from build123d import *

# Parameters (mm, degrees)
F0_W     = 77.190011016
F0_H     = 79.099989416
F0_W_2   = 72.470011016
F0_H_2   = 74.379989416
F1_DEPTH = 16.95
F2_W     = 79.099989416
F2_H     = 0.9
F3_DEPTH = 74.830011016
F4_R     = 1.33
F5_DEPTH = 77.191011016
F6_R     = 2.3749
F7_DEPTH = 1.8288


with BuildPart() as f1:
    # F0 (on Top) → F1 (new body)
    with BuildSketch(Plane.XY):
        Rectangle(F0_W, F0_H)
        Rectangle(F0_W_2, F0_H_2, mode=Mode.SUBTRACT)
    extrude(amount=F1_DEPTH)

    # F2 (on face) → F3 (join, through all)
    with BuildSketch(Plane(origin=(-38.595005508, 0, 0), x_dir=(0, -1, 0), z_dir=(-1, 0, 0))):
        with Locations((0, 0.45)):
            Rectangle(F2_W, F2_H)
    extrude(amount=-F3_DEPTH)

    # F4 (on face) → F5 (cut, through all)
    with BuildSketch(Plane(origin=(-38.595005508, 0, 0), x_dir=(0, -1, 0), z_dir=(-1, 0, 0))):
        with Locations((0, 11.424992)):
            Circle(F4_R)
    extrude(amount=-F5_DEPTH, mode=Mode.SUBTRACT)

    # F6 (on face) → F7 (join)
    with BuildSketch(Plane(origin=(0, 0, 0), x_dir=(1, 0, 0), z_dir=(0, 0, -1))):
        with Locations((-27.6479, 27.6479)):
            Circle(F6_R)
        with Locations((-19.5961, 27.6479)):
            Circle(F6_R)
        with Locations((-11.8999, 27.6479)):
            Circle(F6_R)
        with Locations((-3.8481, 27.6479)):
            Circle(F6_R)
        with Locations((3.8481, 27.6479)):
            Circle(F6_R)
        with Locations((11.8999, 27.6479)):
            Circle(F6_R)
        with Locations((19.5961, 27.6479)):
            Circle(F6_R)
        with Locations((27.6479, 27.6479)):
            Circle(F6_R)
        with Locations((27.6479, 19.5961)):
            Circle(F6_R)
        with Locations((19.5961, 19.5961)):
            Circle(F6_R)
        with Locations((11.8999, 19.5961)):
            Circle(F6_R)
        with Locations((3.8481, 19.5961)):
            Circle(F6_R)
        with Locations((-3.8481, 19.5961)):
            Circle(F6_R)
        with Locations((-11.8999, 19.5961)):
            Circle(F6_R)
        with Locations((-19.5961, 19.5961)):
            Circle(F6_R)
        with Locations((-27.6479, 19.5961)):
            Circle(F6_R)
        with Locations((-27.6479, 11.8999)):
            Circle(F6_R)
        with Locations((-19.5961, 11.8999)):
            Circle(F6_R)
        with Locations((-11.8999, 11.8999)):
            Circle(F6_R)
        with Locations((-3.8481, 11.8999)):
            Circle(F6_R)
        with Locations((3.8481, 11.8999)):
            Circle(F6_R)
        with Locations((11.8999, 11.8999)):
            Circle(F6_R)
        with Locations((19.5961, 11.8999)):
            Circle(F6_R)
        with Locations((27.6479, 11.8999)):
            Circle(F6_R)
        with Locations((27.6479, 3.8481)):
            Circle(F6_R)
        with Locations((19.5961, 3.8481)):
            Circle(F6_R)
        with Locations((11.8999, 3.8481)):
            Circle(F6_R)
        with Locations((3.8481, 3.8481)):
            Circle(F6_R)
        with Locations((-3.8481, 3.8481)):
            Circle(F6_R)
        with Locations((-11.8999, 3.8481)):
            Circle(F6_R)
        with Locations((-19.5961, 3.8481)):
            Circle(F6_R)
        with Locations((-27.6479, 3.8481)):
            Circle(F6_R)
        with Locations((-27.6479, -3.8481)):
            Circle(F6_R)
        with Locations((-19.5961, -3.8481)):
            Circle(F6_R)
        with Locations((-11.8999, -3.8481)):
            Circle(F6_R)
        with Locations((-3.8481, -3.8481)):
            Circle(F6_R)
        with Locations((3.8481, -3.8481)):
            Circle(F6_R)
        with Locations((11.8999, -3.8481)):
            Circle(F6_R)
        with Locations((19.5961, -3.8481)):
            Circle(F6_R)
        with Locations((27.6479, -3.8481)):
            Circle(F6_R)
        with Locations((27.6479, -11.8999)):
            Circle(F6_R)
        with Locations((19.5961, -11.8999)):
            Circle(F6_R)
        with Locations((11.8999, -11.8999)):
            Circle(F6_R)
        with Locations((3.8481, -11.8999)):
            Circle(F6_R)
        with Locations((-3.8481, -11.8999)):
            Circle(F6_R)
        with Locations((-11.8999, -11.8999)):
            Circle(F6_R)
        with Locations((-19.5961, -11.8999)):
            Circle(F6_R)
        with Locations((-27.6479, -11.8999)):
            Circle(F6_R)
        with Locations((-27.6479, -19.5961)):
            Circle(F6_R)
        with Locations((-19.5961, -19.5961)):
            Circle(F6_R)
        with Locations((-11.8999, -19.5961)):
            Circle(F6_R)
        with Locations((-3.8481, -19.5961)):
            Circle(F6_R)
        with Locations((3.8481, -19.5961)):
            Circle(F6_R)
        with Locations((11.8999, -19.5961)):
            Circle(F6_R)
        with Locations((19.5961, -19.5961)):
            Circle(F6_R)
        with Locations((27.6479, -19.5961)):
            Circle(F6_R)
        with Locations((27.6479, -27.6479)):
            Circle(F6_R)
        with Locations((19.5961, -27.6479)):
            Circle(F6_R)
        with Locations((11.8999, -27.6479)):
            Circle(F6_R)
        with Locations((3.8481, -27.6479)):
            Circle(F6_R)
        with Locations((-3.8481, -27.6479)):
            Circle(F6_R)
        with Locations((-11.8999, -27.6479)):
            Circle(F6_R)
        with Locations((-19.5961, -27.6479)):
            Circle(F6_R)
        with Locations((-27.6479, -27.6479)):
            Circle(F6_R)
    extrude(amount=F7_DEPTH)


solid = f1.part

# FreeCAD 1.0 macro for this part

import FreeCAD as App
import Part
import Sketcher

V = App.Vector
Q = App.Units.Quantity


def add_polygon(sketch, points):
    """Adds a closed chain of lines whose ends are joined by coincident constraints."""
    first, n = sketch.GeometryCount, len(points)
    for a, b in zip(points, points[1:] + points[:1]):
        sketch.addGeometry(Part.LineSegment(App.Vector(*a, 0), App.Vector(*b, 0)), False)
    for i in range(n):
        sketch.addConstraint(Sketcher.Constraint("Coincident", first + i, 2, first + (i + 1) % n, 1))

doc = App.newDocument("Part")
body = doc.addObject("PartDesign::Body", "Body")

# Sketch on XY plane
sketch1 = body.newObject("Sketcher::SketchObject", "Sketch")
sketch1.AttachmentSupport = (doc.getObject("XY_Plane"), [""])
sketch1.MapMode = "FlatFace"
add_polygon(sketch1, [(-39, 40), (-39, -40), (39, -40), (39, 40)])  # lines 0-3
add_polygon(sketch1, [(36, -37), (-36, -37), (-36, 37), (36, 37)])  # lines 4-7
sketch1.addConstraint(Sketcher.Constraint("Vertical", 0))
sketch1.addConstraint(Sketcher.Constraint("Horizontal", 1))
sketch1.addConstraint(Sketcher.Constraint("Vertical", 2))
sketch1.addConstraint(Sketcher.Constraint("Horizontal", 3))
sketch1.addConstraint(Sketcher.Constraint("Horizontal", 4))
sketch1.addConstraint(Sketcher.Constraint("Vertical", 5))
sketch1.addConstraint(Sketcher.Constraint("Horizontal", 6))
sketch1.addConstraint(Sketcher.Constraint("Vertical", 7))
sketch1.addConstraint(Sketcher.Constraint("Symmetric", 0, 2, 2, 2, -1, 1))
sketch1.addConstraint(Sketcher.Constraint("Symmetric", 4, 2, 6, 2, -1, 1))
sketch1.addConstraint(Sketcher.Constraint("DistanceX", 1, 1, 1, 2, 77.190011))
sketch1.addConstraint(Sketcher.Constraint("DistanceX", 4, 2, 4, 1, 72.470011))
sketch1.addConstraint(Sketcher.Constraint("DistanceY", 0, 2, 0, 1, 79.099989))
sketch1.addConstraint(Sketcher.Constraint("DistanceY", 5, 1, 5, 2, 74.379989))
pad1 = body.newObject("PartDesign::Pad", "Pad")
pad1.Profile = sketch1
pad1.Length = 16.95

# Sketch on YZ plane
sketch2 = body.newObject("Sketcher::SketchObject", "Sketch001")
sketch2.AttachmentSupport = (doc.getObject("YZ_Plane"), [""])
sketch2.MapMode = "FlatFace"
sketch2.AttachmentOffset = App.Placement(V(0, 0, -38.595006), App.Rotation())
add_polygon(sketch2, [(39.5, 0.9), (39.5, 0), (-39.5, 0), (-39.5, 0.9)])  # lines 0-3
sketch2.addConstraint(Sketcher.Constraint("Vertical", 0))
sketch2.addConstraint(Sketcher.Constraint("Horizontal", 1))
sketch2.addConstraint(Sketcher.Constraint("Vertical", 2))
sketch2.addConstraint(Sketcher.Constraint("Horizontal", 3))
sketch2.addConstraint(Sketcher.Constraint("Symmetric", 0, 2, 1, 2, -1, 1))
sketch2.addConstraint(Sketcher.Constraint("DistanceY", 0, 2, 0, 1, 0.9))
sketch2.addConstraint(Sketcher.Constraint("DistanceX", 1, 2, 1, 1, 79.099989))
pad2 = body.newObject("PartDesign::Pad", "Pad001")
pad2.Profile = sketch2
pad2.Type = "UpToLast"

# Sketch on YZ plane
sketch3 = body.newObject("Sketcher::SketchObject", "Sketch002")
sketch3.AttachmentSupport = (doc.getObject("YZ_Plane"), [""])
sketch3.MapMode = "FlatFace"
sketch3.AttachmentOffset = App.Placement(V(0, 0, -38.595006), App.Rotation())
sketch3.addGeometry(Part.Circle(V(0, 11.4, 0), V(0, 0, 1), 1.3), False)
sketch3.addConstraint(Sketcher.Constraint("PointOnObject", 0, 3, -2))
sketch3.addConstraint(Sketcher.Constraint("Diameter", 0, 2.66))
sketch3.addConstraint(Sketcher.Constraint("DistanceY", -1, 1, 0, 3, 11.424992))
pocket1 = body.newObject("PartDesign::Pocket", "Pocket")
pocket1.Profile = sketch3
pocket1.Type = "ThroughAll"
pocket1.Reversed = True

# Sketch on XY plane
sketch4 = body.newObject("Sketcher::SketchObject", "Sketch003")
sketch4.AttachmentSupport = (doc.getObject("XY_Plane"), [""])
sketch4.MapMode = "FlatFace"
sketch4.addGeometry(Part.Circle(V(-27.6, -27.6, 0), V(0, 0, 1), 2.4), False)
sketch4.addGeometry(Part.Circle(V(-19.6, -27.6, 0), V(0, 0, 1), 2.4), False)
sketch4.addGeometry(Part.Circle(V(-11.9, -27.6, 0), V(0, 0, 1), 2.4), False)
sketch4.addGeometry(Part.Circle(V(-3.8, -27.6, 0), V(0, 0, 1), 2.4), False)
sketch4.addGeometry(Part.Circle(V(3.8, -27.6, 0), V(0, 0, 1), 2.4), False)
sketch4.addGeometry(Part.Circle(V(11.9, -27.6, 0), V(0, 0, 1), 2.4), False)
sketch4.addGeometry(Part.Circle(V(19.6, -27.6, 0), V(0, 0, 1), 2.4), False)
sketch4.addGeometry(Part.Circle(V(27.6, -27.6, 0), V(0, 0, 1), 2.4), False)
sketch4.addGeometry(Part.Circle(V(27.6, -19.6, 0), V(0, 0, 1), 2.4), False)
sketch4.addGeometry(Part.Circle(V(19.6, -19.6, 0), V(0, 0, 1), 2.4), False)
sketch4.addGeometry(Part.Circle(V(11.9, -19.6, 0), V(0, 0, 1), 2.4), False)
sketch4.addGeometry(Part.Circle(V(3.8, -19.6, 0), V(0, 0, 1), 2.4), False)
sketch4.addGeometry(Part.Circle(V(-3.8, -19.6, 0), V(0, 0, 1), 2.4), False)
sketch4.addGeometry(Part.Circle(V(-11.9, -19.6, 0), V(0, 0, 1), 2.4), False)
sketch4.addGeometry(Part.Circle(V(-19.6, -19.6, 0), V(0, 0, 1), 2.4), False)
sketch4.addGeometry(Part.Circle(V(-27.6, -19.6, 0), V(0, 0, 1), 2.4), False)
sketch4.addGeometry(Part.Circle(V(-27.6, -11.9, 0), V(0, 0, 1), 2.4), False)
sketch4.addGeometry(Part.Circle(V(-19.6, -11.9, 0), V(0, 0, 1), 2.4), False)
sketch4.addGeometry(Part.Circle(V(-11.9, -11.9, 0), V(0, 0, 1), 2.4), False)
sketch4.addGeometry(Part.Circle(V(-3.8, -11.9, 0), V(0, 0, 1), 2.4), False)
sketch4.addGeometry(Part.Circle(V(3.8, -11.9, 0), V(0, 0, 1), 2.4), False)
sketch4.addGeometry(Part.Circle(V(11.9, -11.9, 0), V(0, 0, 1), 2.4), False)
sketch4.addGeometry(Part.Circle(V(19.6, -11.9, 0), V(0, 0, 1), 2.4), False)
sketch4.addGeometry(Part.Circle(V(27.6, -11.9, 0), V(0, 0, 1), 2.4), False)
sketch4.addGeometry(Part.Circle(V(27.6, -3.8, 0), V(0, 0, 1), 2.4), False)
sketch4.addGeometry(Part.Circle(V(19.6, -3.8, 0), V(0, 0, 1), 2.4), False)
sketch4.addGeometry(Part.Circle(V(11.9, -3.8, 0), V(0, 0, 1), 2.4), False)
sketch4.addGeometry(Part.Circle(V(3.8, -3.8, 0), V(0, 0, 1), 2.4), False)
sketch4.addGeometry(Part.Circle(V(-3.8, -3.8, 0), V(0, 0, 1), 2.4), False)
sketch4.addGeometry(Part.Circle(V(-11.9, -3.8, 0), V(0, 0, 1), 2.4), False)
sketch4.addGeometry(Part.Circle(V(-19.6, -3.8, 0), V(0, 0, 1), 2.4), False)
sketch4.addGeometry(Part.Circle(V(-27.6, -3.8, 0), V(0, 0, 1), 2.4), False)
sketch4.addGeometry(Part.Circle(V(-27.6, 3.8, 0), V(0, 0, 1), 2.4), False)
sketch4.addGeometry(Part.Circle(V(-19.6, 3.8, 0), V(0, 0, 1), 2.4), False)
sketch4.addGeometry(Part.Circle(V(-11.9, 3.8, 0), V(0, 0, 1), 2.4), False)
sketch4.addGeometry(Part.Circle(V(-3.8, 3.8, 0), V(0, 0, 1), 2.4), False)
sketch4.addGeometry(Part.Circle(V(3.8, 3.8, 0), V(0, 0, 1), 2.4), False)
sketch4.addGeometry(Part.Circle(V(11.9, 3.8, 0), V(0, 0, 1), 2.4), False)
sketch4.addGeometry(Part.Circle(V(19.6, 3.8, 0), V(0, 0, 1), 2.4), False)
sketch4.addGeometry(Part.Circle(V(27.6, 3.8, 0), V(0, 0, 1), 2.4), False)
sketch4.addGeometry(Part.Circle(V(27.6, 11.9, 0), V(0, 0, 1), 2.4), False)
sketch4.addGeometry(Part.Circle(V(19.6, 11.9, 0), V(0, 0, 1), 2.4), False)
sketch4.addGeometry(Part.Circle(V(11.9, 11.9, 0), V(0, 0, 1), 2.4), False)
sketch4.addGeometry(Part.Circle(V(3.8, 11.9, 0), V(0, 0, 1), 2.4), False)
sketch4.addGeometry(Part.Circle(V(-3.8, 11.9, 0), V(0, 0, 1), 2.4), False)
sketch4.addGeometry(Part.Circle(V(-11.9, 11.9, 0), V(0, 0, 1), 2.4), False)
sketch4.addGeometry(Part.Circle(V(-19.6, 11.9, 0), V(0, 0, 1), 2.4), False)
sketch4.addGeometry(Part.Circle(V(-27.6, 11.9, 0), V(0, 0, 1), 2.4), False)
sketch4.addGeometry(Part.Circle(V(-27.6, 19.6, 0), V(0, 0, 1), 2.4), False)
sketch4.addGeometry(Part.Circle(V(-19.6, 19.6, 0), V(0, 0, 1), 2.4), False)
sketch4.addGeometry(Part.Circle(V(-11.9, 19.6, 0), V(0, 0, 1), 2.4), False)
sketch4.addGeometry(Part.Circle(V(-3.8, 19.6, 0), V(0, 0, 1), 2.4), False)
sketch4.addGeometry(Part.Circle(V(3.8, 19.6, 0), V(0, 0, 1), 2.4), False)
sketch4.addGeometry(Part.Circle(V(11.9, 19.6, 0), V(0, 0, 1), 2.4), False)
sketch4.addGeometry(Part.Circle(V(19.6, 19.6, 0), V(0, 0, 1), 2.4), False)
sketch4.addGeometry(Part.Circle(V(27.6, 19.6, 0), V(0, 0, 1), 2.4), False)
sketch4.addGeometry(Part.Circle(V(27.6, 27.6, 0), V(0, 0, 1), 2.4), False)
sketch4.addGeometry(Part.Circle(V(19.6, 27.6, 0), V(0, 0, 1), 2.4), False)
sketch4.addGeometry(Part.Circle(V(11.9, 27.6, 0), V(0, 0, 1), 2.4), False)
sketch4.addGeometry(Part.Circle(V(3.8, 27.6, 0), V(0, 0, 1), 2.4), False)
sketch4.addGeometry(Part.Circle(V(-3.8, 27.6, 0), V(0, 0, 1), 2.4), False)
sketch4.addGeometry(Part.Circle(V(-11.9, 27.6, 0), V(0, 0, 1), 2.4), False)
sketch4.addGeometry(Part.Circle(V(-19.6, 27.6, 0), V(0, 0, 1), 2.4), False)
sketch4.addGeometry(Part.Circle(V(-27.6, 27.6, 0), V(0, 0, 1), 2.4), False)
sketch4.addConstraint(Sketcher.Constraint("Equal", 0, 1))
sketch4.addConstraint(Sketcher.Constraint("Equal", 1, 2))
sketch4.addConstraint(Sketcher.Constraint("Equal", 2, 3))
sketch4.addConstraint(Sketcher.Constraint("Equal", 3, 4))
sketch4.addConstraint(Sketcher.Constraint("Equal", 4, 5))
sketch4.addConstraint(Sketcher.Constraint("Equal", 5, 6))
sketch4.addConstraint(Sketcher.Constraint("Equal", 6, 7))
sketch4.addConstraint(Sketcher.Constraint("Equal", 7, 8))
sketch4.addConstraint(Sketcher.Constraint("Equal", 8, 9))
sketch4.addConstraint(Sketcher.Constraint("Equal", 9, 10))
sketch4.addConstraint(Sketcher.Constraint("Equal", 10, 11))
sketch4.addConstraint(Sketcher.Constraint("Equal", 11, 12))
sketch4.addConstraint(Sketcher.Constraint("Equal", 12, 13))
sketch4.addConstraint(Sketcher.Constraint("Equal", 13, 14))
sketch4.addConstraint(Sketcher.Constraint("Equal", 14, 15))
sketch4.addConstraint(Sketcher.Constraint("Equal", 15, 16))
sketch4.addConstraint(Sketcher.Constraint("Equal", 16, 17))
sketch4.addConstraint(Sketcher.Constraint("Equal", 17, 18))
sketch4.addConstraint(Sketcher.Constraint("Equal", 18, 19))
sketch4.addConstraint(Sketcher.Constraint("Equal", 19, 20))
sketch4.addConstraint(Sketcher.Constraint("Equal", 20, 21))
sketch4.addConstraint(Sketcher.Constraint("Equal", 21, 22))
sketch4.addConstraint(Sketcher.Constraint("Equal", 22, 23))
sketch4.addConstraint(Sketcher.Constraint("Equal", 23, 24))
sketch4.addConstraint(Sketcher.Constraint("Equal", 24, 25))
sketch4.addConstraint(Sketcher.Constraint("Equal", 25, 26))
sketch4.addConstraint(Sketcher.Constraint("Equal", 26, 27))
sketch4.addConstraint(Sketcher.Constraint("Equal", 27, 28))
sketch4.addConstraint(Sketcher.Constraint("Equal", 28, 29))
sketch4.addConstraint(Sketcher.Constraint("Equal", 29, 30))
sketch4.addConstraint(Sketcher.Constraint("Equal", 30, 31))
sketch4.addConstraint(Sketcher.Constraint("Equal", 31, 32))
sketch4.addConstraint(Sketcher.Constraint("Equal", 32, 33))
sketch4.addConstraint(Sketcher.Constraint("Equal", 33, 34))
sketch4.addConstraint(Sketcher.Constraint("Equal", 34, 35))
sketch4.addConstraint(Sketcher.Constraint("Equal", 35, 36))
sketch4.addConstraint(Sketcher.Constraint("Equal", 36, 37))
sketch4.addConstraint(Sketcher.Constraint("Equal", 37, 38))
sketch4.addConstraint(Sketcher.Constraint("Equal", 38, 39))
sketch4.addConstraint(Sketcher.Constraint("Equal", 39, 40))
sketch4.addConstraint(Sketcher.Constraint("Equal", 40, 41))
sketch4.addConstraint(Sketcher.Constraint("Equal", 41, 42))
sketch4.addConstraint(Sketcher.Constraint("Equal", 42, 43))
sketch4.addConstraint(Sketcher.Constraint("Equal", 43, 44))
sketch4.addConstraint(Sketcher.Constraint("Equal", 44, 45))
sketch4.addConstraint(Sketcher.Constraint("Equal", 45, 46))
sketch4.addConstraint(Sketcher.Constraint("Equal", 46, 47))
sketch4.addConstraint(Sketcher.Constraint("Equal", 47, 48))
sketch4.addConstraint(Sketcher.Constraint("Equal", 48, 49))
sketch4.addConstraint(Sketcher.Constraint("Equal", 49, 50))
sketch4.addConstraint(Sketcher.Constraint("Equal", 50, 51))
sketch4.addConstraint(Sketcher.Constraint("Equal", 51, 52))
sketch4.addConstraint(Sketcher.Constraint("Equal", 52, 53))
sketch4.addConstraint(Sketcher.Constraint("Equal", 53, 54))
sketch4.addConstraint(Sketcher.Constraint("Equal", 54, 55))
sketch4.addConstraint(Sketcher.Constraint("Equal", 55, 56))
sketch4.addConstraint(Sketcher.Constraint("Equal", 56, 57))
sketch4.addConstraint(Sketcher.Constraint("Equal", 57, 58))
sketch4.addConstraint(Sketcher.Constraint("Equal", 58, 59))
sketch4.addConstraint(Sketcher.Constraint("Equal", 59, 60))
sketch4.addConstraint(Sketcher.Constraint("Equal", 60, 61))
sketch4.addConstraint(Sketcher.Constraint("Equal", 61, 62))
sketch4.addConstraint(Sketcher.Constraint("Equal", 62, 63))
sketch4.addConstraint(Sketcher.Constraint("Symmetric", 24, 3, 32, 3, -1, 1))
sketch4.addConstraint(Sketcher.Constraint("Symmetric", 25, 3, 33, 3, -1, 1))
sketch4.addConstraint(Sketcher.Constraint("Symmetric", 26, 3, 34, 3, -1, 1))
sketch4.addConstraint(Sketcher.Constraint("Symmetric", 27, 3, 35, 3, -1, 1))
sketch4.addConstraint(Sketcher.Constraint("Symmetric", 28, 3, 36, 3, -1, 1))
sketch4.addConstraint(Sketcher.Constraint("Symmetric", 29, 3, 37, 3, -1, 1))
sketch4.addConstraint(Sketcher.Constraint("Symmetric", 30, 3, 38, 3, -1, 1))
sketch4.addConstraint(Sketcher.Constraint("Symmetric", 31, 3, 39, 3, -1, 1))
sketch4.addConstraint(Sketcher.Constraint("Symmetric", 16, 3, 40, 3, -1, 1))
sketch4.addConstraint(Sketcher.Constraint("Symmetric", 17, 3, 41, 3, -1, 1))
sketch4.addConstraint(Sketcher.Constraint("Symmetric", 18, 3, 42, 3, -1, 1))
sketch4.addConstraint(Sketcher.Constraint("Symmetric", 19, 3, 43, 3, -1, 1))
sketch4.addConstraint(Sketcher.Constraint("Symmetric", 20, 3, 44, 3, -1, 1))
sketch4.addConstraint(Sketcher.Constraint("Symmetric", 21, 3, 45, 3, -1, 1))
sketch4.addConstraint(Sketcher.Constraint("Symmetric", 22, 3, 46, 3, -1, 1))
sketch4.addConstraint(Sketcher.Constraint("Symmetric", 23, 3, 47, 3, -1, 1))
sketch4.addConstraint(Sketcher.Constraint("Symmetric", 8, 3, 48, 3, -1, 1))
sketch4.addConstraint(Sketcher.Constraint("Symmetric", 9, 3, 49, 3, -1, 1))
sketch4.addConstraint(Sketcher.Constraint("Symmetric", 10, 3, 50, 3, -1, 1))
sketch4.addConstraint(Sketcher.Constraint("Symmetric", 11, 3, 51, 3, -1, 1))
sketch4.addConstraint(Sketcher.Constraint("Symmetric", 12, 3, 52, 3, -1, 1))
sketch4.addConstraint(Sketcher.Constraint("Symmetric", 13, 3, 53, 3, -1, 1))
sketch4.addConstraint(Sketcher.Constraint("Symmetric", 14, 3, 54, 3, -1, 1))
sketch4.addConstraint(Sketcher.Constraint("Symmetric", 15, 3, 55, 3, -1, 1))
sketch4.addConstraint(Sketcher.Constraint("Symmetric", 0, 3, 56, 3, -1, 1))
sketch4.addConstraint(Sketcher.Constraint("Symmetric", 1, 3, 57, 3, -1, 1))
sketch4.addConstraint(Sketcher.Constraint("Symmetric", 2, 3, 58, 3, -1, 1))
sketch4.addConstraint(Sketcher.Constraint("Symmetric", 3, 3, 59, 3, -1, 1))
sketch4.addConstraint(Sketcher.Constraint("Symmetric", 4, 3, 60, 3, -1, 1))
sketch4.addConstraint(Sketcher.Constraint("Symmetric", 5, 3, 61, 3, -1, 1))
sketch4.addConstraint(Sketcher.Constraint("Symmetric", 6, 3, 62, 3, -1, 1))
sketch4.addConstraint(Sketcher.Constraint("Symmetric", 7, 3, 63, 3, -1, 1))
sketch4.addConstraint(Sketcher.Constraint("Symmetric", 3, 3, 4, 3, -2))
sketch4.addConstraint(Sketcher.Constraint("Symmetric", 2, 3, 5, 3, -2))
sketch4.addConstraint(Sketcher.Constraint("Symmetric", 1, 3, 6, 3, -2))
sketch4.addConstraint(Sketcher.Constraint("Symmetric", 0, 3, 7, 3, -2))
sketch4.addConstraint(Sketcher.Constraint("Symmetric", 11, 3, 12, 3, -2))
sketch4.addConstraint(Sketcher.Constraint("Symmetric", 10, 3, 13, 3, -2))
sketch4.addConstraint(Sketcher.Constraint("Symmetric", 9, 3, 14, 3, -2))
sketch4.addConstraint(Sketcher.Constraint("Symmetric", 8, 3, 15, 3, -2))
sketch4.addConstraint(Sketcher.Constraint("Symmetric", 19, 3, 20, 3, -2))
sketch4.addConstraint(Sketcher.Constraint("Symmetric", 18, 3, 21, 3, -2))
sketch4.addConstraint(Sketcher.Constraint("Symmetric", 17, 3, 22, 3, -2))
sketch4.addConstraint(Sketcher.Constraint("Symmetric", 16, 3, 23, 3, -2))
sketch4.addConstraint(Sketcher.Constraint("Symmetric", 27, 3, 28, 3, -2))
sketch4.addConstraint(Sketcher.Constraint("Symmetric", 26, 3, 29, 3, -2))
sketch4.addConstraint(Sketcher.Constraint("Symmetric", 25, 3, 30, 3, -2))
sketch4.addConstraint(Sketcher.Constraint("Symmetric", 24, 3, 31, 3, -2))
sketch4.addConstraint(Sketcher.Constraint("Horizontal", 0, 3, 1, 3))
sketch4.addConstraint(Sketcher.Constraint("Horizontal", 1, 3, 2, 3))
sketch4.addConstraint(Sketcher.Constraint("Horizontal", 2, 3, 3, 3))
sketch4.addConstraint(Sketcher.Constraint("Horizontal", 8, 3, 9, 3))
sketch4.addConstraint(Sketcher.Constraint("Horizontal", 9, 3, 10, 3))
sketch4.addConstraint(Sketcher.Constraint("Horizontal", 10, 3, 11, 3))
sketch4.addConstraint(Sketcher.Constraint("Horizontal", 16, 3, 17, 3))
sketch4.addConstraint(Sketcher.Constraint("Horizontal", 17, 3, 18, 3))
sketch4.addConstraint(Sketcher.Constraint("Horizontal", 18, 3, 19, 3))
sketch4.addConstraint(Sketcher.Constraint("Horizontal", 24, 3, 25, 3))
sketch4.addConstraint(Sketcher.Constraint("Horizontal", 25, 3, 26, 3))
sketch4.addConstraint(Sketcher.Constraint("Horizontal", 26, 3, 27, 3))
sketch4.addConstraint(Sketcher.Constraint("Vertical", 7, 3, 8, 3))
sketch4.addConstraint(Sketcher.Constraint("Vertical", 6, 3, 9, 3))
sketch4.addConstraint(Sketcher.Constraint("Vertical", 5, 3, 10, 3))
sketch4.addConstraint(Sketcher.Constraint("Vertical", 4, 3, 11, 3))
sketch4.addConstraint(Sketcher.Constraint("Vertical", 15, 3, 16, 3))
sketch4.addConstraint(Sketcher.Constraint("Vertical", 14, 3, 17, 3))
sketch4.addConstraint(Sketcher.Constraint("Vertical", 13, 3, 18, 3))
sketch4.addConstraint(Sketcher.Constraint("Vertical", 12, 3, 19, 3))
sketch4.addConstraint(Sketcher.Constraint("Vertical", 23, 3, 24, 3))
sketch4.addConstraint(Sketcher.Constraint("Vertical", 22, 3, 25, 3))
sketch4.addConstraint(Sketcher.Constraint("Vertical", 21, 3, 26, 3))
sketch4.addConstraint(Sketcher.Constraint("Vertical", 20, 3, 27, 3))
sketch4.addConstraint(Sketcher.Constraint("Diameter", 0, Q("0.187 in")))
sketch4.addConstraint(Sketcher.Constraint("DistanceX", 0, 3, -1, 1, Q("1.0885 in")))
sketch4.addConstraint(Sketcher.Constraint("DistanceY", 0, 3, -1, 1, Q("1.0885 in")))
sketch4.addConstraint(Sketcher.Constraint("DistanceX", 1, 3, -1, 1, Q("0.7715 in")))
sketch4.addConstraint(Sketcher.Constraint("DistanceX", 2, 3, -1, 1, Q("0.4685 in")))
sketch4.addConstraint(Sketcher.Constraint("DistanceX", 3, 3, -1, 1, Q("0.1515 in")))
sketch4.addConstraint(Sketcher.Constraint("DistanceY", 8, 3, -1, 1, Q("0.7715 in")))
sketch4.addConstraint(Sketcher.Constraint("DistanceY", 16, 3, -1, 1, Q("0.4685 in")))
sketch4.addConstraint(Sketcher.Constraint("DistanceY", 24, 3, -1, 1, Q("0.1515 in")))
pad3 = body.newObject("PartDesign::Pad", "Pad002")
pad3.Profile = sketch4
pad3.Length = Q("0.072 in")
pad3.Reversed = True

doc.recompute()
